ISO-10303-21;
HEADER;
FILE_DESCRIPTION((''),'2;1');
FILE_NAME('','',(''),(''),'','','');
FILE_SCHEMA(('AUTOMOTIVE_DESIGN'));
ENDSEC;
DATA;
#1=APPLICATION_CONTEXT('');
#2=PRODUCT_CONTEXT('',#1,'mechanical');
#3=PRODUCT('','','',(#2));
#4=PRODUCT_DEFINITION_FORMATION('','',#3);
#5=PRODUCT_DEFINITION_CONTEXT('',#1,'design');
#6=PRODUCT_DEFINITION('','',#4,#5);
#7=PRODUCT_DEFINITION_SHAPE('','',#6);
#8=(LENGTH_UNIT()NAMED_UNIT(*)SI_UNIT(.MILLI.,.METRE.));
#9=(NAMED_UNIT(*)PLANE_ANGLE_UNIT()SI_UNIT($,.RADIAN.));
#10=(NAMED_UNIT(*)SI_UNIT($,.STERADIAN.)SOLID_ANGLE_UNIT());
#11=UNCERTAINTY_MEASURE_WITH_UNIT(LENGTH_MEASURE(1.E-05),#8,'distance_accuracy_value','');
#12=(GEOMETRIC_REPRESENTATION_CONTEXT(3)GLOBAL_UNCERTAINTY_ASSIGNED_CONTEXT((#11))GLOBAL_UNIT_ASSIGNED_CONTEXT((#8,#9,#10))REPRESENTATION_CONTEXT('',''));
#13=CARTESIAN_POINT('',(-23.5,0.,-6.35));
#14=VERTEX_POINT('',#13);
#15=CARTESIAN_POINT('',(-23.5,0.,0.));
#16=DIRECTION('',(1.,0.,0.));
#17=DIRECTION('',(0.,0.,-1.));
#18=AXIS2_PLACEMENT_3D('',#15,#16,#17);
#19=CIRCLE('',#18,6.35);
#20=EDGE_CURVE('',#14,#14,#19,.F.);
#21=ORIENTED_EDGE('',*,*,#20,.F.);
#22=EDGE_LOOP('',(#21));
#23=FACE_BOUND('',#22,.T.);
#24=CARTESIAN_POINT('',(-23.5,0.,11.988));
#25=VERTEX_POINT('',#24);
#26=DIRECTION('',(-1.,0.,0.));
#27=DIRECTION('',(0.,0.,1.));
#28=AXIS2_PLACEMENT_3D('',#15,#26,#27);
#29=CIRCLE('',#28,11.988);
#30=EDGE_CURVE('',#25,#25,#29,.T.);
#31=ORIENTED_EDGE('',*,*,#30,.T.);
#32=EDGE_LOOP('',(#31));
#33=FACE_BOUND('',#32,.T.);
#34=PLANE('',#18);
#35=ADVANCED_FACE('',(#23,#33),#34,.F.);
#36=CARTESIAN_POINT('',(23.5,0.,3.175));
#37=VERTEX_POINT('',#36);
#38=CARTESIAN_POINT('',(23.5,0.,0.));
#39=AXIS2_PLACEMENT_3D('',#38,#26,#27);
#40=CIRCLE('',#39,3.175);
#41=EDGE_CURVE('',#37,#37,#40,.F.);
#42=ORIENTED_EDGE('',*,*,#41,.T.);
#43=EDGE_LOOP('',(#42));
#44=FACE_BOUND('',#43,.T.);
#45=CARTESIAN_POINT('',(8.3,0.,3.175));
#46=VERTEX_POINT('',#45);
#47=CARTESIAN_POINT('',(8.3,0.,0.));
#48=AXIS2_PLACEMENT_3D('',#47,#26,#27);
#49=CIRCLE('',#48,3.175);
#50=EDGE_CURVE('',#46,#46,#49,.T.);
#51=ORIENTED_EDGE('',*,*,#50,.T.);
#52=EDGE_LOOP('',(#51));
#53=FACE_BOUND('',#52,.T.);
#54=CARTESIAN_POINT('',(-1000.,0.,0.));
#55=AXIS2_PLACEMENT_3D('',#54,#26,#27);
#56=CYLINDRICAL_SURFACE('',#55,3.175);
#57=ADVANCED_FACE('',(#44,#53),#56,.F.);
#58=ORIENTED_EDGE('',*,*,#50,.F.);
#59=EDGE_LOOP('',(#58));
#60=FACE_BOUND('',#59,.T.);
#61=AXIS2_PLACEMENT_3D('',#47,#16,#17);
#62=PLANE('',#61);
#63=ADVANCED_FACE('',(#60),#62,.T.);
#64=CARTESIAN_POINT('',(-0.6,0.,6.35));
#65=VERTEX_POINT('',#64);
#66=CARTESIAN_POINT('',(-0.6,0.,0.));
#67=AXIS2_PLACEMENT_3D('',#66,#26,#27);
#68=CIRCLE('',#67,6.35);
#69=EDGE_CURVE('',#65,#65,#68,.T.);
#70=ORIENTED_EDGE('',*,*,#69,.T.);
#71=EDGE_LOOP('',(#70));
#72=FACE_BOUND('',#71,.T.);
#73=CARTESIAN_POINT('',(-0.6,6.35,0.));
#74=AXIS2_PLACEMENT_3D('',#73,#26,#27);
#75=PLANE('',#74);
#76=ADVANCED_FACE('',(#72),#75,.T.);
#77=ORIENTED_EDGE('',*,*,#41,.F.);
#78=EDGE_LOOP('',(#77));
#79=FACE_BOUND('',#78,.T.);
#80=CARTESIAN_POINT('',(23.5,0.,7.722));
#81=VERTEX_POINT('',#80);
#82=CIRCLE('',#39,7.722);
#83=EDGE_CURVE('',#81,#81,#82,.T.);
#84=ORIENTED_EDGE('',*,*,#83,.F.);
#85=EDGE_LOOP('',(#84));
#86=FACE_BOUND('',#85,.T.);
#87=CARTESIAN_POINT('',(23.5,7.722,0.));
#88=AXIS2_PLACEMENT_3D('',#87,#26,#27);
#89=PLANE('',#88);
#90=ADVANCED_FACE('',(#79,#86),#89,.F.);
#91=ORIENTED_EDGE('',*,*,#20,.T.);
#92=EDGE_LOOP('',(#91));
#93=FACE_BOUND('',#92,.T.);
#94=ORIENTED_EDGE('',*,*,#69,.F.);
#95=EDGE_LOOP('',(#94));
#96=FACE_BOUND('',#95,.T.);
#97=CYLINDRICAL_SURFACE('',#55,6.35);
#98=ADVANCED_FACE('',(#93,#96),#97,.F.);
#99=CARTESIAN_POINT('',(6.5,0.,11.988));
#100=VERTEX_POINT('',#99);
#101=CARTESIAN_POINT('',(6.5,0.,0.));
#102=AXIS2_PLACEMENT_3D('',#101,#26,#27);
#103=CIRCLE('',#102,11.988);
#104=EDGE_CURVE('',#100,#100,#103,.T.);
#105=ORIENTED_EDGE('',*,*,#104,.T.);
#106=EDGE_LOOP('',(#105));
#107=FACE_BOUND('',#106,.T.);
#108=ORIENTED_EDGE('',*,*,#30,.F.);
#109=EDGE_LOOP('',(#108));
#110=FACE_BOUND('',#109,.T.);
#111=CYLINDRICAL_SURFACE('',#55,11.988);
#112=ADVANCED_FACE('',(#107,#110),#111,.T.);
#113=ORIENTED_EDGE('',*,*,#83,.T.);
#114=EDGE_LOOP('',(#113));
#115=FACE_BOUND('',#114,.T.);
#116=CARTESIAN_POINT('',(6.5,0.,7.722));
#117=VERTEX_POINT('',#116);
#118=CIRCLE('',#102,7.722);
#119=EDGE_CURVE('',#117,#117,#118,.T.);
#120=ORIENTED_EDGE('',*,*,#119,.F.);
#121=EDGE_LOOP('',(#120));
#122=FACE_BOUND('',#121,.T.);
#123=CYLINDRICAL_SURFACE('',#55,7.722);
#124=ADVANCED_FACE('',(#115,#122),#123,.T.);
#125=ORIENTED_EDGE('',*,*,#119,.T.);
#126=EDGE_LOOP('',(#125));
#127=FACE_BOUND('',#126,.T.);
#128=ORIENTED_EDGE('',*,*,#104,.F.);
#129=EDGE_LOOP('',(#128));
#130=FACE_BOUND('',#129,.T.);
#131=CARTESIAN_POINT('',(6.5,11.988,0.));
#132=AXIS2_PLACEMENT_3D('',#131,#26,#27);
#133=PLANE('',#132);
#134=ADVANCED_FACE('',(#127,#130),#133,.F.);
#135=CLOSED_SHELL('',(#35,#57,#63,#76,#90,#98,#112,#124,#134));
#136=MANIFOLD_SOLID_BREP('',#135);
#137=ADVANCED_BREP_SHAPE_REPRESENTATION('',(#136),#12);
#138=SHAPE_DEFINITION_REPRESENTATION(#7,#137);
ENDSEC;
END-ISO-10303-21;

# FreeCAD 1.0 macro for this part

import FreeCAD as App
import Part
import Sketcher
from FreeCAD import Vector

doc = App.newDocument("Part")
body = doc.addObject("PartDesign::Body", "Body")

# Sketch on XY plane
sketch1 = doc.addObject("Sketcher::SketchObject", "Sketch")
body.addObject(sketch1)
sketch1.AttachmentSupport = (doc.XY_Plane, [""])
sketch1.MapMode = "FlatFace"
sketch1.addGeometry(Part.LineSegment(Vector(-23.5, 11.988, 0), Vector(-23.5, 0, 0)), False)
sketch1.addGeometry(Part.LineSegment(Vector(-23.5, 0, 0), Vector(23.5, 0, 0)), False)
sketch1.addGeometry(Part.LineSegment(Vector(23.5, 0, 0), Vector(23.5, 7.722, 0)), False)
sketch1.addGeometry(Part.LineSegment(Vector(23.5, 7.722, 0), Vector(6.5, 7.722, 0)), False)
sketch1.addGeometry(Part.LineSegment(Vector(6.5, 7.722, 0), Vector(6.5, 11.988, 0)), False)
sketch1.addGeometry(Part.LineSegment(Vector(6.5, 11.988, 0), Vector(-23.5, 11.988, 0)), False)
sketch1.addConstraint(Sketcher.Constraint("Coincident", 0, 2, 1, 1))
sketch1.addConstraint(Sketcher.Constraint("Coincident", 1, 2, 2, 1))
sketch1.addConstraint(Sketcher.Constraint("Coincident", 2, 2, 3, 1))
sketch1.addConstraint(Sketcher.Constraint("Coincident", 3, 2, 4, 1))
sketch1.addConstraint(Sketcher.Constraint("Coincident", 4, 2, 5, 1))
sketch1.addConstraint(Sketcher.Constraint("Coincident", 5, 2, 0, 1))
sketch1.addConstraint(Sketcher.Constraint("Vertical", 0))
sketch1.addConstraint(Sketcher.Constraint("Horizontal", 1))
sketch1.addConstraint(Sketcher.Constraint("Vertical", 2))
sketch1.addConstraint(Sketcher.Constraint("Horizontal", 3))
sketch1.addConstraint(Sketcher.Constraint("Vertical", 4))
sketch1.addConstraint(Sketcher.Constraint("Horizontal", 5))
sketch1.addConstraint(Sketcher.Constraint("Symmetric", 0, 2, 1, 2, -1, 1))
sketch1.addConstraint(Sketcher.Constraint("DistanceX", 1, 1, 1, 2, 47.0))
sketch1.addConstraint(Sketcher.Constraint("DistanceX", 3, 2, 3, 1, 17.0))
sketch1.addConstraint(Sketcher.Constraint("DistanceY", 0, 2, 0, 1, 11.988))
sketch1.addConstraint(Sketcher.Constraint("DistanceY", 2, 1, 2, 2, 7.722))
revolution = doc.addObject("PartDesign::Revolution", "Revolution")
body.addObject(revolution)
revolution.Profile = sketch1
revolution.ReferenceAxis = (sketch1, ["H_Axis"])
revolution.Angle = 360

# Sketch on XY plane
sketch2 = doc.addObject("Sketcher::SketchObject", "Sketch001")
body.addObject(sketch2)
sketch2.AttachmentSupport = (doc.XY_Plane, [""])
sketch2.MapMode = "FlatFace"
sketch2.addGeometry(Part.LineSegment(Vector(-24.5, 6.35, 0), Vector(-24.5, 0, 0)), False)
sketch2.addGeometry(Part.LineSegment(Vector(-24.5, 0, 0), Vector(-0.6, 0, 0)), False)
sketch2.addGeometry(Part.LineSegment(Vector(-0.6, 0, 0), Vector(-0.6, 6.35, 0)), False)
sketch2.addGeometry(Part.LineSegment(Vector(-0.6, 6.35, 0), Vector(-24.5, 6.35, 0)), False)
sketch2.addConstraint(Sketcher.Constraint("Coincident", 0, 2, 1, 1))
sketch2.addConstraint(Sketcher.Constraint("Coincident", 1, 2, 2, 1))
sketch2.addConstraint(Sketcher.Constraint("Coincident", 2, 2, 3, 1))
sketch2.addConstraint(Sketcher.Constraint("Coincident", 3, 2, 0, 1))
sketch2.addConstraint(Sketcher.Constraint("Vertical", 0))
sketch2.addConstraint(Sketcher.Constraint("Horizontal", 1))
sketch2.addConstraint(Sketcher.Constraint("Vertical", 2))
sketch2.addConstraint(Sketcher.Constraint("Horizontal", 3))
sketch2.addConstraint(Sketcher.Constraint("PointOnObject", 0, 2, -1))
sketch2.addConstraint(Sketcher.Constraint("DistanceX", 1, 1, 1, 2, 23.9))
sketch2.addConstraint(Sketcher.Constraint("DistanceY", 0, 2, 0, 1, 6.35))
sketch2.addConstraint(Sketcher.Constraint("DistanceX", 0, 2, -1, 1, 24.5))
groove = doc.addObject("PartDesign::Groove", "Groove")
body.addObject(groove)
groove.Profile = sketch2
groove.ReferenceAxis = (sketch2, ["H_Axis"])
groove.Angle = 360

# Sketch on XY plane
sketch3 = doc.addObject("Sketcher::SketchObject", "Sketch002")
body.addObject(sketch3)
sketch3.AttachmentSupport = (doc.XY_Plane, [""])
sketch3.MapMode = "FlatFace"
sketch3.addGeometry(Part.LineSegment(Vector(8.3, 3.175, 0), Vector(8.3, 0, 0)), False)
sketch3.addGeometry(Part.LineSegment(Vector(8.3, 0, 0), Vector(24.5, 0, 0)), False)
sketch3.addGeometry(Part.LineSegment(Vector(24.5, 0, 0), Vector(24.5, 3.175, 0)), False)
sketch3.addGeometry(Part.LineSegment(Vector(24.5, 3.175, 0), Vector(8.3, 3.175, 0)), False)
sketch3.addConstraint(Sketcher.Constraint("Coincident", 0, 2, 1, 1))
sketch3.addConstraint(Sketcher.Constraint("Coincident", 1, 2, 2, 1))
sketch3.addConstraint(Sketcher.Constraint("Coincident", 2, 2, 3, 1))
sketch3.addConstraint(Sketcher.Constraint("Coincident", 3, 2, 0, 1))
sketch3.addConstraint(Sketcher.Constraint("Vertical", 0))
sketch3.addConstraint(Sketcher.Constraint("Horizontal", 1))
sketch3.addConstraint(Sketcher.Constraint("Vertical", 2))
sketch3.addConstraint(Sketcher.Constraint("Horizontal", 3))
sketch3.addConstraint(Sketcher.Constraint("PointOnObject", 0, 2, -1))
sketch3.addConstraint(Sketcher.Constraint("DistanceX", 1, 1, 1, 2, 16.2))
sketch3.addConstraint(Sketcher.Constraint("DistanceX", -1, 1, 0, 2, 8.3))
sketch3.addConstraint(Sketcher.Constraint("DistanceY", 0, 2, 0, 1, 3.175))
groove2 = doc.addObject("PartDesign::Groove", "Groove001")
body.addObject(groove2)
groove2.Profile = sketch3
groove2.ReferenceAxis = (sketch3, ["H_Axis"])
groove2.Angle = 360

doc.recompute()
